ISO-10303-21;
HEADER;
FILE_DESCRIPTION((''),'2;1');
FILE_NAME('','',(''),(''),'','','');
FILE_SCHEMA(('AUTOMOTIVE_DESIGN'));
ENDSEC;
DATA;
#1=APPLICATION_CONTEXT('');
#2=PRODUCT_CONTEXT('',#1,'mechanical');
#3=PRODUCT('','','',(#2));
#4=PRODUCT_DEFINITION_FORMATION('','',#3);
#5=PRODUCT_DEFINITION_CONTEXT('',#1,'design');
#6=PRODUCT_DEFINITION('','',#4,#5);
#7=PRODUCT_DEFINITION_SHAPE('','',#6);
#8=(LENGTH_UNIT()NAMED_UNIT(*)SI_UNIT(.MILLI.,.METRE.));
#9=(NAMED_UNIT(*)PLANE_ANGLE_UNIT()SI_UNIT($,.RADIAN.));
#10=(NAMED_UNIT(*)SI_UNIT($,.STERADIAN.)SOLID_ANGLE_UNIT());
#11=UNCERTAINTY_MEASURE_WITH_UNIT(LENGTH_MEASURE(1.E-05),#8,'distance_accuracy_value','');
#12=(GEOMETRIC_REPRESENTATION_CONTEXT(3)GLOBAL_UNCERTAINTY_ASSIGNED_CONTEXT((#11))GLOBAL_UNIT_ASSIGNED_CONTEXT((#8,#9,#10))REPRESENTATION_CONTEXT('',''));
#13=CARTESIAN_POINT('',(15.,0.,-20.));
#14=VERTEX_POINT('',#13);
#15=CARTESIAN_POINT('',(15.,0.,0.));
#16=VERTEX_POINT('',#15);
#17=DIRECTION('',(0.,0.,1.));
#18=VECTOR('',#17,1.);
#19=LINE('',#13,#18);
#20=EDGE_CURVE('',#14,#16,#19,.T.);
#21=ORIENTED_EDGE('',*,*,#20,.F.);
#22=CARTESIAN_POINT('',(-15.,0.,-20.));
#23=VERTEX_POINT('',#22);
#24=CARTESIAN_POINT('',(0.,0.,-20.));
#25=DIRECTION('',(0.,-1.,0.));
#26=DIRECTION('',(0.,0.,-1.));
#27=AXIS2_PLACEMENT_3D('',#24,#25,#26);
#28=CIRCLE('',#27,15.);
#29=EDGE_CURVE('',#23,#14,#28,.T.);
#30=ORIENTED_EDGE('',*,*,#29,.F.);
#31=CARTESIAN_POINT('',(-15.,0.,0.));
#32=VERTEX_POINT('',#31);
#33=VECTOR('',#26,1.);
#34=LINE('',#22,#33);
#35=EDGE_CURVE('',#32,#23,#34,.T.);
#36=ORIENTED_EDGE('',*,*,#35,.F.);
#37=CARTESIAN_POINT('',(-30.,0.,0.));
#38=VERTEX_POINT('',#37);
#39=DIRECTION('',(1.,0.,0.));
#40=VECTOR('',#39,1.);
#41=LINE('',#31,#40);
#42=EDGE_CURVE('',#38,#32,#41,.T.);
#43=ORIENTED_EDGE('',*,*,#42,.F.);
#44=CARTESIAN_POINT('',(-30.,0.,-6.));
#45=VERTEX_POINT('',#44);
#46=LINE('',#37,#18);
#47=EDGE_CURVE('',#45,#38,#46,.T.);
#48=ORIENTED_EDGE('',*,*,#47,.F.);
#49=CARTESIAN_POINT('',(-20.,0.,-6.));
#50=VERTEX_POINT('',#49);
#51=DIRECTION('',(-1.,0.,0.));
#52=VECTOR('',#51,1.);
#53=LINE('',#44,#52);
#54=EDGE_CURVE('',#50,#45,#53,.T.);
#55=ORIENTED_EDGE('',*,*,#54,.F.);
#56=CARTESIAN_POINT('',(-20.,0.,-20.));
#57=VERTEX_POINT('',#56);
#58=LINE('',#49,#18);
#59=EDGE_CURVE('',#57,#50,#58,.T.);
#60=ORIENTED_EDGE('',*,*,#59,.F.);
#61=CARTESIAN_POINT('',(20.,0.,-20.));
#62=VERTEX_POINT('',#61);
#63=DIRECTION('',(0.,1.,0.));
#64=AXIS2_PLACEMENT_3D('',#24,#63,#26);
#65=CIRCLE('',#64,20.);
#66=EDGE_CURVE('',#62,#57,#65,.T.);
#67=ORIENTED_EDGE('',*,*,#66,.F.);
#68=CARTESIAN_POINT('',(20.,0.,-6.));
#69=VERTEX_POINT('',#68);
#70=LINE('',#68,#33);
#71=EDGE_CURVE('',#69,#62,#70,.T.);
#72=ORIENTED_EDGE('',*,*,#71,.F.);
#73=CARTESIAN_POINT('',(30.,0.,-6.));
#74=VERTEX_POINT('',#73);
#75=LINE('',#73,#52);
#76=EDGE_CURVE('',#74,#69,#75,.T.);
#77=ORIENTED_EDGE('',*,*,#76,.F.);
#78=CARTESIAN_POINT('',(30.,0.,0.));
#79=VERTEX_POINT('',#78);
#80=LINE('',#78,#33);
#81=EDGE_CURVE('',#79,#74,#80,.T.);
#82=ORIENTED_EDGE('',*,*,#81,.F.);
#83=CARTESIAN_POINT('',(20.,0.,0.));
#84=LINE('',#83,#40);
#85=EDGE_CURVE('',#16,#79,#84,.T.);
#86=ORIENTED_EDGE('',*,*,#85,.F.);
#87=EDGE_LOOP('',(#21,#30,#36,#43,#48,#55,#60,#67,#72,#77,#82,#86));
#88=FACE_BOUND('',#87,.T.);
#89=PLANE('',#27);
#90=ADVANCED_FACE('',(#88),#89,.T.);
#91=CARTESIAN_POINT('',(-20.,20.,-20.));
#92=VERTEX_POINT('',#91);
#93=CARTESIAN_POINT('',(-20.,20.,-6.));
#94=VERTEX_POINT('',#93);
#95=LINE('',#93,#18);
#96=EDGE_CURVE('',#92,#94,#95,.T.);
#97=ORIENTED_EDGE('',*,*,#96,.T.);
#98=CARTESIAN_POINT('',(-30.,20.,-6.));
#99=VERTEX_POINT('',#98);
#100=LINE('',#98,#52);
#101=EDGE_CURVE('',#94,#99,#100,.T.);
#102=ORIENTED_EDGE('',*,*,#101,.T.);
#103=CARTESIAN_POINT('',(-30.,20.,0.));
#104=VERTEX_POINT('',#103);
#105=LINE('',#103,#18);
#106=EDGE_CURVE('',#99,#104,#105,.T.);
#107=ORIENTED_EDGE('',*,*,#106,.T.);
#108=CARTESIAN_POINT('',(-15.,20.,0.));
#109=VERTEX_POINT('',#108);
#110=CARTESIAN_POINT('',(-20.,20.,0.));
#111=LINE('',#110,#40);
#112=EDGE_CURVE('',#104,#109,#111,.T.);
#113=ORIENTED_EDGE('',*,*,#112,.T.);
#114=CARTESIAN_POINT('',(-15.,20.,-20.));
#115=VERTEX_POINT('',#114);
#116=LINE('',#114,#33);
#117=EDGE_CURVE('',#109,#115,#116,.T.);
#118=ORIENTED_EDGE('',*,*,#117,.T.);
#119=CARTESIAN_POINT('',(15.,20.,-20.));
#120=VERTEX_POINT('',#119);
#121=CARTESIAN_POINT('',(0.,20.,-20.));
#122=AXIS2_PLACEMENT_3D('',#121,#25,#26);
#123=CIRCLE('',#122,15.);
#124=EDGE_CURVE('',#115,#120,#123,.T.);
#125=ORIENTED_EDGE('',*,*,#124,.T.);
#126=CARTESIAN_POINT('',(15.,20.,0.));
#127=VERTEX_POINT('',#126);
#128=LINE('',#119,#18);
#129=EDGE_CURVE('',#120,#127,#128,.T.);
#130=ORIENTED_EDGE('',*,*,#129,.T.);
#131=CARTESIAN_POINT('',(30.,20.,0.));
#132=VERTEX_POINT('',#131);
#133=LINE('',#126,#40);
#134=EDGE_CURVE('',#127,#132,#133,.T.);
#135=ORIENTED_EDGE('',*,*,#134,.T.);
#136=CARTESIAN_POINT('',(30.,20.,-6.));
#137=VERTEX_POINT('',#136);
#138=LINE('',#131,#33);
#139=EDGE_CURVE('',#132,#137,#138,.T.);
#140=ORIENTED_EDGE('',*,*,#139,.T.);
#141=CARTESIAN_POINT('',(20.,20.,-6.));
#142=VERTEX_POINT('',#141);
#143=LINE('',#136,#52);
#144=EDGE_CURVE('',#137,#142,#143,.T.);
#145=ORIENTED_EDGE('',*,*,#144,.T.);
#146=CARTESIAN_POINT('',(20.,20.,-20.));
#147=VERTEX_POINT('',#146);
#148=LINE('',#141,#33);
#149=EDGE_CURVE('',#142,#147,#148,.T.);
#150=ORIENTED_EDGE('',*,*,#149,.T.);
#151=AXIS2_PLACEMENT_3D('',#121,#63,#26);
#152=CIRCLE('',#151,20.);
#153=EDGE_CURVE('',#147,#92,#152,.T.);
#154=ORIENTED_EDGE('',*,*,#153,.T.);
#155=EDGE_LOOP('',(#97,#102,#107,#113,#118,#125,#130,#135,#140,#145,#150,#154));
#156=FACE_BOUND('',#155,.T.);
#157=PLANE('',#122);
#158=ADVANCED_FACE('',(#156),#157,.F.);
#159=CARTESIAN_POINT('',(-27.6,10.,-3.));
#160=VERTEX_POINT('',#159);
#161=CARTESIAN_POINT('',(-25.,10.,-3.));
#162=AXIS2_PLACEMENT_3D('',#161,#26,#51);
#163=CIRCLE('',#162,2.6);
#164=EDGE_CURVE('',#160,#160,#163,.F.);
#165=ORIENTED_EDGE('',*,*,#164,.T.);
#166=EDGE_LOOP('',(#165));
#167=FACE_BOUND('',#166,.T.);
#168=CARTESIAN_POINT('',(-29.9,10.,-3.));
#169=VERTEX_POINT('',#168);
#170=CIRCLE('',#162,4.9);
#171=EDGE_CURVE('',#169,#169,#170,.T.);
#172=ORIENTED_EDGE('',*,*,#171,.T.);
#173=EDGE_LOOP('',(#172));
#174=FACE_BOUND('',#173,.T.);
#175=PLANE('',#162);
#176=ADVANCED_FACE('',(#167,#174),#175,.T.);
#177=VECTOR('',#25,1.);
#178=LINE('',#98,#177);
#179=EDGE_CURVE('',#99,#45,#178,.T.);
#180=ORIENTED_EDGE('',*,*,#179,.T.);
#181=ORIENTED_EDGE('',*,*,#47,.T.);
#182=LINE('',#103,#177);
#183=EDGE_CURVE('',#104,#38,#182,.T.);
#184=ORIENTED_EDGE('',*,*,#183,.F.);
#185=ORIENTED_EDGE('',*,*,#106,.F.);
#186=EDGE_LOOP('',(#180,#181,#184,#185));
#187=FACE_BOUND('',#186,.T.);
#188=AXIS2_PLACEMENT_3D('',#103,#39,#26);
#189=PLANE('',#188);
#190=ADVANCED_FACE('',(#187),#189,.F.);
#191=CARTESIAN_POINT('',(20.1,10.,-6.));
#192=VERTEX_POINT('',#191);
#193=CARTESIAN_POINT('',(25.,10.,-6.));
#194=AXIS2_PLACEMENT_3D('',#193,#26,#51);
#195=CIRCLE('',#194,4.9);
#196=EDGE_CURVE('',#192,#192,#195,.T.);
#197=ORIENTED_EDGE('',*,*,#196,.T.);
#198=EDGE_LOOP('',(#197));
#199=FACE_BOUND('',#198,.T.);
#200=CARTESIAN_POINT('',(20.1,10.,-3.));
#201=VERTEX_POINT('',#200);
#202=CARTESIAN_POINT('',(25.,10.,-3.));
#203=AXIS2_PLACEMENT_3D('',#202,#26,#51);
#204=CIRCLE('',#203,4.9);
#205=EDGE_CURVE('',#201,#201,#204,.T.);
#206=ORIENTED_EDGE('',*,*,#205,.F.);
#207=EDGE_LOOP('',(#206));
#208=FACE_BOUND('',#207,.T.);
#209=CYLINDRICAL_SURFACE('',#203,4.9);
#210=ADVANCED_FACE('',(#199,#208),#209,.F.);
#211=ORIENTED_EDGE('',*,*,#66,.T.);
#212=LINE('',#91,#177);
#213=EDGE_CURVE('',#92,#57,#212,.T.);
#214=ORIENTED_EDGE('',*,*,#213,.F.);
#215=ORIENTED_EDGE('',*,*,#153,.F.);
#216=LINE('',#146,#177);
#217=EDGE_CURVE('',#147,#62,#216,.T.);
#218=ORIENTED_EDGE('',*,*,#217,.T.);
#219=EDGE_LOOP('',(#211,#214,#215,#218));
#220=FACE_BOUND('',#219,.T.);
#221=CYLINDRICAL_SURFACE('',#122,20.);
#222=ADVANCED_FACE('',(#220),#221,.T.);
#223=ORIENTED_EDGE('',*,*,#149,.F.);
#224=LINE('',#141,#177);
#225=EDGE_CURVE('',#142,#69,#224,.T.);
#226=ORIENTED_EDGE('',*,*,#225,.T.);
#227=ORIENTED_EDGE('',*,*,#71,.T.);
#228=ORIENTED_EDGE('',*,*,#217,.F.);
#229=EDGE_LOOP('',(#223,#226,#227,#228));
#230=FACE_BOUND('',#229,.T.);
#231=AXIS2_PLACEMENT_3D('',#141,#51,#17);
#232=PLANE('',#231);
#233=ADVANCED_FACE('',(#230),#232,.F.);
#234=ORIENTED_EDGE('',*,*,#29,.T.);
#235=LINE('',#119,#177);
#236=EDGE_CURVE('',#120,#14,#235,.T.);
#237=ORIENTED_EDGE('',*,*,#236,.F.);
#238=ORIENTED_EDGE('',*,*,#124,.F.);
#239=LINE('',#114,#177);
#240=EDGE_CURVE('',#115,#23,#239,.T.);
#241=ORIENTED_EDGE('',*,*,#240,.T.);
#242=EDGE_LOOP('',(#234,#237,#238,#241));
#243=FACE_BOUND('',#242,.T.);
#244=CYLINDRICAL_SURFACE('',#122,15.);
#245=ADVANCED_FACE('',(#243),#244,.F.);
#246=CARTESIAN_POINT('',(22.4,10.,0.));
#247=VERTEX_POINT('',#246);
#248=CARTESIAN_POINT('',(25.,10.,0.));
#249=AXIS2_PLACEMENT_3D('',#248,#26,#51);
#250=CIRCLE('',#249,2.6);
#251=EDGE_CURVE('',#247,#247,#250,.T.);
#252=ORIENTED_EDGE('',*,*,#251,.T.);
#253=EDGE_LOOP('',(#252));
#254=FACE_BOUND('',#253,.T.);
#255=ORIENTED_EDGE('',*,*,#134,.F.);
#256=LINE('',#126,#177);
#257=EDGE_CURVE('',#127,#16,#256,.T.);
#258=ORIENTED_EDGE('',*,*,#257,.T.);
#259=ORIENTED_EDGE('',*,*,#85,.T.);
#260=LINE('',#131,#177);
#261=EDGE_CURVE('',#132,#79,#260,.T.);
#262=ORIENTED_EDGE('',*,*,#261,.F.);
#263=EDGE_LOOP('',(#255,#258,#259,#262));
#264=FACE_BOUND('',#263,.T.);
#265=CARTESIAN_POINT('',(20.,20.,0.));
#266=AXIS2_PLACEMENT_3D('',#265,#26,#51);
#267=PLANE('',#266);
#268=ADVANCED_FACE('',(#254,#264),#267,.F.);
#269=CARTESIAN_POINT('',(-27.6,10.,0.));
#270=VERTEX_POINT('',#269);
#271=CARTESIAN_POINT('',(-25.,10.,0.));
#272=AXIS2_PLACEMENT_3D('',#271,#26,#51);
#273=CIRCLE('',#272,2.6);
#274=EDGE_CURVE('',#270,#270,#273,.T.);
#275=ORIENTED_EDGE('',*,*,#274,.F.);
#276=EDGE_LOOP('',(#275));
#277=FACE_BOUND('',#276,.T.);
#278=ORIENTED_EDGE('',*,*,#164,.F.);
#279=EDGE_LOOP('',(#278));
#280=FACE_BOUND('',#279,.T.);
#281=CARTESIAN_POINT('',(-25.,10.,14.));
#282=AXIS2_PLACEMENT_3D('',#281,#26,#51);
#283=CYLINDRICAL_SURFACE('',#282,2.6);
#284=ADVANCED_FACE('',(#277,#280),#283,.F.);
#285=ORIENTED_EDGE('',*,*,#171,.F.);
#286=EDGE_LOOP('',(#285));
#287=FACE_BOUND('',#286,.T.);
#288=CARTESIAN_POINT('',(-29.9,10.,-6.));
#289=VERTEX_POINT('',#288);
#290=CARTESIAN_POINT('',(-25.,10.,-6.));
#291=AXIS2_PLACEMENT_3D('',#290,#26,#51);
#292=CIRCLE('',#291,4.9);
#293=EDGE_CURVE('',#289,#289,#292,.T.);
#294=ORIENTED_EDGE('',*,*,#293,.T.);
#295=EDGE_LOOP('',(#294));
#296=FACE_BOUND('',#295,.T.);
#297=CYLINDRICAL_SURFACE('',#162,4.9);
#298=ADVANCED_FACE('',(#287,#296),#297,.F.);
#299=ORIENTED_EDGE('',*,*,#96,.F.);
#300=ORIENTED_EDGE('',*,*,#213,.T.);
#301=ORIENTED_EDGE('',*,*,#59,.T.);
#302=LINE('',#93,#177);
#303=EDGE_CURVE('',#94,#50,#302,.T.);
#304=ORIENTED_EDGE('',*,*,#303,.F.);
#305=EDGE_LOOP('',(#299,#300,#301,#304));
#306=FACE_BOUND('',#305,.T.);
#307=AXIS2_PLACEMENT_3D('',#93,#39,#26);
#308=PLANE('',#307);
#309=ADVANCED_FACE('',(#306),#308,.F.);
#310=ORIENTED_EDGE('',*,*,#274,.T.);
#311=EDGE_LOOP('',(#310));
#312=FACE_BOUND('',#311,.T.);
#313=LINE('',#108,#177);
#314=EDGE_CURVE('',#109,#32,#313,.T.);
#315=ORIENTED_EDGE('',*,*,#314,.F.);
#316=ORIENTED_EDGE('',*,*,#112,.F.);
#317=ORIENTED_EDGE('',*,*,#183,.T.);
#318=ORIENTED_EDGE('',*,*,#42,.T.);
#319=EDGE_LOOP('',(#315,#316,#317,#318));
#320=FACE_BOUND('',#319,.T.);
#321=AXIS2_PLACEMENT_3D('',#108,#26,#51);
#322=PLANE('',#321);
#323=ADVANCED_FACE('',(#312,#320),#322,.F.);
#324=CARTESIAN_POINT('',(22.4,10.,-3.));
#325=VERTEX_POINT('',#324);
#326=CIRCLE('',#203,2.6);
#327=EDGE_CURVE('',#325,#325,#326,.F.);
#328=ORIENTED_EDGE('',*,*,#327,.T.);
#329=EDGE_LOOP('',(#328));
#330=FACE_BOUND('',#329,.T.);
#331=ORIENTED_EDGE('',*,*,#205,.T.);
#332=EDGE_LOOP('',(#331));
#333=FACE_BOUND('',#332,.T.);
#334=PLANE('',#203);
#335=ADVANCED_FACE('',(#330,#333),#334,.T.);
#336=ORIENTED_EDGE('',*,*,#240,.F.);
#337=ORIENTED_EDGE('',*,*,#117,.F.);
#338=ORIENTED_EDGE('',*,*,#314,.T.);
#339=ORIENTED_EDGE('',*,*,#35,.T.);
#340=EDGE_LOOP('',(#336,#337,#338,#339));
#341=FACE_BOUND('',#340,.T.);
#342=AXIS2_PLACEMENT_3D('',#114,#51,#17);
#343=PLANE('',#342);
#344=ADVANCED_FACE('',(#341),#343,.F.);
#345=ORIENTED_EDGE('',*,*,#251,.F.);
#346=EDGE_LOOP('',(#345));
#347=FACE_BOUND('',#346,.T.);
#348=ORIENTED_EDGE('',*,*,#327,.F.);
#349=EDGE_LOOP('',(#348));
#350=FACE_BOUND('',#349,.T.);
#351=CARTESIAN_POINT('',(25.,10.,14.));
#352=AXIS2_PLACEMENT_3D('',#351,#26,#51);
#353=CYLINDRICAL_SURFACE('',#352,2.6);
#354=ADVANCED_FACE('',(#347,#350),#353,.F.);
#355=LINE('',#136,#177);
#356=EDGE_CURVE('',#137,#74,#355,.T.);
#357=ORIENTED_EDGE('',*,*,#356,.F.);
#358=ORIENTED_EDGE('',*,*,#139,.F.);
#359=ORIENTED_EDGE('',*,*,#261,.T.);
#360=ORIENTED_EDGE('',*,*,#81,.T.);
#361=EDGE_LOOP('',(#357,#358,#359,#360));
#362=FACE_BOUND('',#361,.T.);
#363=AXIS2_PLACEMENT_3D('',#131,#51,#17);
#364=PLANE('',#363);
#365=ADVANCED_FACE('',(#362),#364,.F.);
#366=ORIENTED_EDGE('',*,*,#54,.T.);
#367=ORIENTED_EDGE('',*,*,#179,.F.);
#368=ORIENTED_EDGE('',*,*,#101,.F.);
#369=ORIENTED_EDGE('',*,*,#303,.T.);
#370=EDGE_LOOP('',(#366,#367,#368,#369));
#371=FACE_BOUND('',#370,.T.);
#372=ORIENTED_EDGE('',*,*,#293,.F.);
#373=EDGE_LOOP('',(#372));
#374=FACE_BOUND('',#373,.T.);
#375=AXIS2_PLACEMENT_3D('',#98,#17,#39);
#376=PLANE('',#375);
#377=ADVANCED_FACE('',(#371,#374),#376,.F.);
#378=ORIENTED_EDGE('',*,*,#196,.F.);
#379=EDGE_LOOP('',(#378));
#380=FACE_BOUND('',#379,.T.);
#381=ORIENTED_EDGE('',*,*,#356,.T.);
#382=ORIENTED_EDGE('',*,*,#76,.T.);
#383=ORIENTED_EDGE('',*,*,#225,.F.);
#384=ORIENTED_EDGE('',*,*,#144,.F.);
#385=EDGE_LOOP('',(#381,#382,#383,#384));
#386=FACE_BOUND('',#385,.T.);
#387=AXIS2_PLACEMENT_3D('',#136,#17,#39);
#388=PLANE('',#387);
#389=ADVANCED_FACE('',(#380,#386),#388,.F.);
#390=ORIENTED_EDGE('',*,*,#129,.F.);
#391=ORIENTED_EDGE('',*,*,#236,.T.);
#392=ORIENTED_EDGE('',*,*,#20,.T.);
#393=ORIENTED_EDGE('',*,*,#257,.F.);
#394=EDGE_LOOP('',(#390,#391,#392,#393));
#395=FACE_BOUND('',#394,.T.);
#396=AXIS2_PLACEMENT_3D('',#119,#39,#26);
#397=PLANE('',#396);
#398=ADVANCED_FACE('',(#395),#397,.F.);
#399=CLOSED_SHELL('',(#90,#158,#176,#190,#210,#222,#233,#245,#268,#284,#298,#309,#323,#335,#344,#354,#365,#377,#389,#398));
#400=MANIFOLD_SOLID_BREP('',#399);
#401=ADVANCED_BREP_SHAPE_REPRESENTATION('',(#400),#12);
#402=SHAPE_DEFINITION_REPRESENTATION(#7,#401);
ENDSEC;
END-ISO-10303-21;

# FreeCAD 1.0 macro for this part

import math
import FreeCAD as App
import Part
import Sketcher
Q = App.Units.Quantity

doc = App.newDocument("Part")
body = doc.addObject("PartDesign::Body", "Body")

sketch1 = body.newObject("Sketcher::SketchObject", "Sketch")
sketch1.AttachmentSupport = (doc.getObject("XZ_Plane"), [""])
sketch1.MapMode = "FlatFace"
sketch1.addGeometry([
    Part.LineSegment(App.Vector(15, 0, 0), App.Vector(30, 0, 0)),
    Part.LineSegment(App.Vector(30, 0, 0), App.Vector(30, -6, 0)),
    Part.LineSegment(App.Vector(30, -6, 0), App.Vector(20, -6, 0)),
    Part.LineSegment(App.Vector(20, -6, 0), App.Vector(20, -20, 0)),
    Part.ArcOfCircle(Part.Circle(App.Vector(0, -20, 0), App.Vector(0, 0, 1), 20), math.radians(180), math.radians(360)),
    Part.LineSegment(App.Vector(-20, -20, 0), App.Vector(-20, -6, 0)),
    Part.LineSegment(App.Vector(-20, -6, 0), App.Vector(-30, -6, 0)),
    Part.LineSegment(App.Vector(-30, -6, 0), App.Vector(-30, 0, 0)),
    Part.LineSegment(App.Vector(-30, 0, 0), App.Vector(-15, 0, 0)),
    Part.LineSegment(App.Vector(-15, 0, 0), App.Vector(-15, -20, 0)),
    Part.ArcOfCircle(Part.Circle(App.Vector(0, -20, 0), App.Vector(0, 0, 1), 15), math.radians(180), math.radians(360)),
    Part.LineSegment(App.Vector(15, -20, 0), App.Vector(15, 0, 0)),
], False)
sketch1.addConstraint([
    Sketcher.Constraint("Coincident", 0, 2, 1, 1),
    Sketcher.Constraint("Coincident", 1, 2, 2, 1),
    Sketcher.Constraint("Coincident", 2, 2, 3, 1),
    Sketcher.Constraint("Tangent", 3, 2, 4, 2),
    Sketcher.Constraint("Tangent", 4, 1, 5, 1),
    Sketcher.Constraint("Coincident", 5, 2, 6, 1),
    Sketcher.Constraint("Coincident", 6, 2, 7, 1),
    Sketcher.Constraint("Coincident", 7, 2, 8, 1),
    Sketcher.Constraint("Coincident", 8, 2, 9, 1),
    Sketcher.Constraint("Tangent", 9, 2, 10, 1),
    Sketcher.Constraint("Tangent", 10, 2, 11, 1),
    Sketcher.Constraint("Coincident", 11, 2, 0, 1),
    Sketcher.Constraint("Horizontal", 0),
    Sketcher.Constraint("Vertical", 1),
    Sketcher.Constraint("Horizontal", 2),
    Sketcher.Constraint("Vertical", 3),
    Sketcher.Constraint("Vertical", 5),
    Sketcher.Constraint("Horizontal", 6),
    Sketcher.Constraint("Vertical", 7),
    Sketcher.Constraint("Horizontal", 8),
    Sketcher.Constraint("Vertical", 9),
    Sketcher.Constraint("Vertical", 11),
    Sketcher.Constraint("Coincident", 10, 3, 4, 3),
    Sketcher.Constraint("Symmetric", 0, 2, 7, 2, -1, 1),
    Sketcher.Constraint("Symmetric", 2, 2, 5, 2, -2),
    Sketcher.Constraint("PointOnObject", 0, 2, -1),
    Sketcher.Constraint("Radius", 4, Q("20 mm")),
    Sketcher.Constraint("Radius", 10, Q("15 mm")),
    Sketcher.Constraint("DistanceX", 0, 1, 0, 2, Q("15 mm")),
    Sketcher.Constraint("DistanceY", 1, 2, 1, 1, Q("6 mm")),
    Sketcher.Constraint("DistanceY", 3, 2, 3, 1, Q("14 mm")),
])
pad1 = body.newObject("PartDesign::Pad", "Pad")
pad1.Profile = sketch1
pad1.Length = 20
pad1.Reversed = True

sketch2 = body.newObject("Sketcher::SketchObject", "Sketch001")
sketch2.AttachmentSupport = (doc.getObject("XY_Plane"), [""])
sketch2.MapMode = "FlatFace"
sketch2.AttachmentOffset = App.Placement(App.Vector(0, 0, -6), App.Rotation())
sketch2.addGeometry([
    Part.ArcOfCircle(Part.Circle(App.Vector(-25, 10, 0), App.Vector(0, 0, 1), 2.6), math.radians(63.434949), math.radians(180)),
    Part.ArcOfCircle(Part.Circle(App.Vector(-25, 10, 0), App.Vector(0, 0, 1), 2.6), math.radians(-116.565051), math.radians(63.434949)),
    Part.ArcOfCircle(Part.Circle(App.Vector(-25, 10, 0), App.Vector(0, 0, 1), 2.6), math.radians(180), math.radians(243.434949)),
    Part.ArcOfCircle(Part.Circle(App.Vector(25, 10, 0), App.Vector(0, 0, 1), 2.6), math.radians(63.434949), math.radians(180)),
    Part.ArcOfCircle(Part.Circle(App.Vector(25, 10, 0), App.Vector(0, 0, 1), 2.6), math.radians(-116.565051), math.radians(63.434949)),
    Part.ArcOfCircle(Part.Circle(App.Vector(25, 10, 0), App.Vector(0, 0, 1), 2.6), math.radians(180), math.radians(243.434949)),
], False)
sketch2.addConstraint([
    Sketcher.Constraint("Tangent", 0, 1, 1, 2),
    Sketcher.Constraint("Tangent", 1, 1, 2, 2),
    Sketcher.Constraint("Tangent", 2, 1, 0, 2),
    Sketcher.Constraint("Tangent", 3, 1, 4, 2),
    Sketcher.Constraint("Tangent", 4, 1, 5, 2),
    Sketcher.Constraint("Tangent", 5, 1, 3, 2),
    Sketcher.Constraint("Equal", 2, 3),
    Sketcher.Constraint("Symmetric", 0, 3, 3, 3, -2),
    Sketcher.Constraint("Horizontal", 5, 3, 2, 1),
    Sketcher.Constraint("Horizontal", 0, 1, 3, 1),
    Sketcher.Constraint("Horizontal", 1, 1, 4, 1),
    Sketcher.Constraint("Horizontal", 2, 1, 5, 1),
    Sketcher.Constraint("Radius", 0, Q("2.6 mm")),
    Sketcher.Constraint("DistanceX", 0, 3, -1, 1, Q("25 mm")),
    Sketcher.Constraint("DistanceY", -1, 1, 0, 3, Q("10 mm")),
    Sketcher.Constraint("DistanceY", -1, 1, 0, 1, Q("12.325511 mm")),
    Sketcher.Constraint("DistanceY", -1, 1, 1, 1, Q("7.674489 mm")),
])
pocket1 = body.newObject("PartDesign::Pocket", "Pocket")
pocket1.Profile = sketch2
pocket1.Length = 20
pocket1.Reversed = True

sketch3 = body.newObject("Sketcher::SketchObject", "Sketch002")
sketch3.AttachmentSupport = (doc.getObject("XY_Plane"), [""])
sketch3.MapMode = "FlatFace"
sketch3.AttachmentOffset = App.Placement(App.Vector(0, 0, -6), App.Rotation())
sketch3.addGeometry([
    Part.Circle(App.Vector(25, 10, 0), App.Vector(0, 0, 1), 4.9),
    Part.Circle(App.Vector(-25, 10, 0), App.Vector(0, 0, 1), 4.9),
], False)
sketch3.addConstraint([
    Sketcher.Constraint("Equal", 0, 1),
    Sketcher.Constraint("Symmetric", 0, 3, 1, 3, -2),
    Sketcher.Constraint("Diameter", 0, Q("9.8 mm")),
    Sketcher.Constraint("DistanceX", -1, 1, 0, 3, Q("25 mm")),
    Sketcher.Constraint("DistanceY", -1, 1, 0, 3, Q("10 mm")),
])
pocket2 = body.newObject("PartDesign::Pocket", "Pocket001")
pocket2.Profile = sketch3
pocket2.Length = 3
pocket2.Reversed = True

doc.recompute()
